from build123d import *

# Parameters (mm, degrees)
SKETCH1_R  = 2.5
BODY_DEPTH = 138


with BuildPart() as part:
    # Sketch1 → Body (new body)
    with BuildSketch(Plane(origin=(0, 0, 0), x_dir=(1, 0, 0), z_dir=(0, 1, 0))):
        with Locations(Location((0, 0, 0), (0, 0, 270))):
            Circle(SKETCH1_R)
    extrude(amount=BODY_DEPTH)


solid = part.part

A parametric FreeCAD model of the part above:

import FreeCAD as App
import Part
import Sketcher

V = App.Vector

doc = App.newDocument("Part")
body = doc.addObject("PartDesign::Body", "Body")

# Sketch on XZ plane
sketch1 = body.newObject("Sketcher::SketchObject", "Sketch")
sketch1.AttachmentSupport = (doc.getObject("XZ_Plane"), [""])
sketch1.MapMode = "FlatFace"
sketch1.addGeometry(Part.Circle(V(0, 0, 0), V(0, 0, 1), 2.5), False)
sketch1.addConstraint([
    Sketcher.Constraint("Coincident", 0, 3, -1, 1),
    Sketcher.Constraint("Diameter", 0, 5.0),
])
pad1 = body.newObject("PartDesign::Pad", "Pad")
pad1.Profile = sketch1
pad1.Length = 138
pad1.Reversed = True

doc.recompute()
